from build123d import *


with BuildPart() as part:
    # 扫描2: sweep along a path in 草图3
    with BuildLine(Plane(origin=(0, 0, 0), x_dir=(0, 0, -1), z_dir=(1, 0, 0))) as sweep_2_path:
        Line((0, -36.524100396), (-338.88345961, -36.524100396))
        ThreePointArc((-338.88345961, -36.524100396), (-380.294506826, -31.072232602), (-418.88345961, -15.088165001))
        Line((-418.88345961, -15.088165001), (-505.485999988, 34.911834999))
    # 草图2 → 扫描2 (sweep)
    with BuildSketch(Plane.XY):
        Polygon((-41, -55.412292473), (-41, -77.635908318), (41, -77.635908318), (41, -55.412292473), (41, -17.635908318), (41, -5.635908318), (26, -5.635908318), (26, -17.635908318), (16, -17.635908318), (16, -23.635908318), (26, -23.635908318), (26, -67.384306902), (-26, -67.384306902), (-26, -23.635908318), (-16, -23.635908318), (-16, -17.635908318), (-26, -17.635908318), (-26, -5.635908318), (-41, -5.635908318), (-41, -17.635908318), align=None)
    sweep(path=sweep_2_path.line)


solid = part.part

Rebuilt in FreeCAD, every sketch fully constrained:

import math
import FreeCAD as App
import Part
import Sketcher
Q = App.Units.Quantity


def add_polygon(sketch, points):
    """Adds a closed chain of lines whose ends are joined by coincident constraints."""
    first, n = sketch.GeometryCount, len(points)
    for a, b in zip(points, points[1:] + points[:1]):
        sketch.addGeometry(Part.LineSegment(App.Vector(*a, 0), App.Vector(*b, 0)), False)
    for i in range(n):
        sketch.addConstraint(Sketcher.Constraint("Coincident", first + i, 2, first + (i + 1) % n, 1))

doc = App.newDocument("Part")
body = doc.addObject("PartDesign::Body", "Body")

sketch1 = body.newObject("Sketcher::SketchObject", "Sketch")
sketch1.AttachmentSupport = (doc.getObject("XY_Plane"), [""])
sketch1.MapMode = "FlatFace"
add_polygon(sketch1, [(-41, -78), (41, -78), (41, -6), (26, -6), (26, -18), (16, -18), (16, -24), (26, -24), (26, -67), (-26, -67), (-26, -24), (-16, -24), (-16, -18), (-26, -18), (-26, -6), (-41, -6)])
sketch1.addConstraint(Sketcher.Constraint("Horizontal", 0))
sketch1.addConstraint(Sketcher.Constraint("Vertical", 1))
sketch1.addConstraint(Sketcher.Constraint("Horizontal", 2))
sketch1.addConstraint(Sketcher.Constraint("Vertical", 3))
sketch1.addConstraint(Sketcher.Constraint("Horizontal", 4))
sketch1.addConstraint(Sketcher.Constraint("Vertical", 5))
sketch1.addConstraint(Sketcher.Constraint("Horizontal", 6))
sketch1.addConstraint(Sketcher.Constraint("Vertical", 7))
sketch1.addConstraint(Sketcher.Constraint("Horizontal", 8))
sketch1.addConstraint(Sketcher.Constraint("Vertical", 9))
sketch1.addConstraint(Sketcher.Constraint("Horizontal", 10))
sketch1.addConstraint(Sketcher.Constraint("Vertical", 11))
sketch1.addConstraint(Sketcher.Constraint("Horizontal", 12))
sketch1.addConstraint(Sketcher.Constraint("Vertical", 13))
sketch1.addConstraint(Sketcher.Constraint("Horizontal", 14))
sketch1.addConstraint(Sketcher.Constraint("Vertical", 15))
sketch1.addConstraint(Sketcher.Constraint("Symmetric", 6, 2, 9, 2, -2))
sketch1.addConstraint(Sketcher.Constraint("Symmetric", 4, 2, 11, 2, -2))
sketch1.addConstraint(Sketcher.Constraint("Symmetric", 2, 2, 13, 2, -2))
sketch1.addConstraint(Sketcher.Constraint("Vertical", 3, 2, 6, 2))
sketch1.addConstraint(Sketcher.Constraint("Equal", 2, 14))
sketch1.addConstraint(Sketcher.Constraint("DistanceX", 0, 1, 0, 2, Q("82 mm")))
sketch1.addConstraint(Sketcher.Constraint("DistanceX", 2, 2, 2, 1, Q("15 mm")))
sketch1.addConstraint(Sketcher.Constraint("DistanceX", 4, 2, 4, 1, Q("10 mm")))
sketch1.addConstraint(Sketcher.Constraint("DistanceY", 1, 1, 1, 2, Q("72 mm")))
sketch1.addConstraint(Sketcher.Constraint("DistanceY", 3, 2, 3, 1, Q("12 mm")))
sketch1.addConstraint(Sketcher.Constraint("DistanceY", 5, 2, 5, 1, Q("6 mm")))
sketch1.addConstraint(Sketcher.Constraint("DistanceY", 7, 2, 7, 1, Q("43.748399 mm")))
sketch1.addConstraint(Sketcher.Constraint("DistanceY", 0, 2, -1, 1, Q("77.635908 mm")))

sketch2 = body.newObject("Sketcher::SketchObject", "Sketch001")
sketch2.AttachmentSupport = (doc.getObject("YZ_Plane"), [""])
sketch2.MapMode = "FlatFace"
sketch2.addGeometry(Part.LineSegment(App.Vector(-37, 0, 0), App.Vector(-37, 339, 0)), False)
sketch2.addGeometry(Part.ArcOfCircle(Part.Circle(App.Vector(123, 339, 0), App.Vector(0, 0, 1), 160), math.radians(150), math.radians(180)), False)
sketch2.addGeometry(Part.LineSegment(App.Vector(-15, 419, 0), App.Vector(35, 505, 0)), False)
sketch2.addConstraint(Sketcher.Constraint("Tangent", 0, 2, 1, 2))
sketch2.addConstraint(Sketcher.Constraint("Tangent", 1, 1, 2, 1))
sketch2.addConstraint(Sketcher.Constraint("Vertical", 0))
sketch2.addConstraint(Sketcher.Constraint("PointOnObject", 0, 1, -1))
sketch2.addConstraint(Sketcher.Constraint("Radius", 1, Q("160 mm")))
sketch2.addConstraint(Sketcher.Constraint("Angle", 2, Q("60 deg")))
sketch2.addConstraint(Sketcher.Constraint("Distance", 2, Q("100 mm")))
sketch2.addConstraint(Sketcher.Constraint("DistanceY", -1, 1, 2, 2, Q("505.486 mm")))
sketch2.addConstraint(Sketcher.Constraint("DistanceX", -1, 1, 1, 3, Q("123.4759 mm")))
doc.recompute()

additivepipe = body.newObject("PartDesign::AdditivePipe", "AdditivePipe")
additivepipe.Profile = sketch1
additivepipe.Spine = (sketch2, ["Edge1", "Edge2", "Edge3"])

doc.recompute()
